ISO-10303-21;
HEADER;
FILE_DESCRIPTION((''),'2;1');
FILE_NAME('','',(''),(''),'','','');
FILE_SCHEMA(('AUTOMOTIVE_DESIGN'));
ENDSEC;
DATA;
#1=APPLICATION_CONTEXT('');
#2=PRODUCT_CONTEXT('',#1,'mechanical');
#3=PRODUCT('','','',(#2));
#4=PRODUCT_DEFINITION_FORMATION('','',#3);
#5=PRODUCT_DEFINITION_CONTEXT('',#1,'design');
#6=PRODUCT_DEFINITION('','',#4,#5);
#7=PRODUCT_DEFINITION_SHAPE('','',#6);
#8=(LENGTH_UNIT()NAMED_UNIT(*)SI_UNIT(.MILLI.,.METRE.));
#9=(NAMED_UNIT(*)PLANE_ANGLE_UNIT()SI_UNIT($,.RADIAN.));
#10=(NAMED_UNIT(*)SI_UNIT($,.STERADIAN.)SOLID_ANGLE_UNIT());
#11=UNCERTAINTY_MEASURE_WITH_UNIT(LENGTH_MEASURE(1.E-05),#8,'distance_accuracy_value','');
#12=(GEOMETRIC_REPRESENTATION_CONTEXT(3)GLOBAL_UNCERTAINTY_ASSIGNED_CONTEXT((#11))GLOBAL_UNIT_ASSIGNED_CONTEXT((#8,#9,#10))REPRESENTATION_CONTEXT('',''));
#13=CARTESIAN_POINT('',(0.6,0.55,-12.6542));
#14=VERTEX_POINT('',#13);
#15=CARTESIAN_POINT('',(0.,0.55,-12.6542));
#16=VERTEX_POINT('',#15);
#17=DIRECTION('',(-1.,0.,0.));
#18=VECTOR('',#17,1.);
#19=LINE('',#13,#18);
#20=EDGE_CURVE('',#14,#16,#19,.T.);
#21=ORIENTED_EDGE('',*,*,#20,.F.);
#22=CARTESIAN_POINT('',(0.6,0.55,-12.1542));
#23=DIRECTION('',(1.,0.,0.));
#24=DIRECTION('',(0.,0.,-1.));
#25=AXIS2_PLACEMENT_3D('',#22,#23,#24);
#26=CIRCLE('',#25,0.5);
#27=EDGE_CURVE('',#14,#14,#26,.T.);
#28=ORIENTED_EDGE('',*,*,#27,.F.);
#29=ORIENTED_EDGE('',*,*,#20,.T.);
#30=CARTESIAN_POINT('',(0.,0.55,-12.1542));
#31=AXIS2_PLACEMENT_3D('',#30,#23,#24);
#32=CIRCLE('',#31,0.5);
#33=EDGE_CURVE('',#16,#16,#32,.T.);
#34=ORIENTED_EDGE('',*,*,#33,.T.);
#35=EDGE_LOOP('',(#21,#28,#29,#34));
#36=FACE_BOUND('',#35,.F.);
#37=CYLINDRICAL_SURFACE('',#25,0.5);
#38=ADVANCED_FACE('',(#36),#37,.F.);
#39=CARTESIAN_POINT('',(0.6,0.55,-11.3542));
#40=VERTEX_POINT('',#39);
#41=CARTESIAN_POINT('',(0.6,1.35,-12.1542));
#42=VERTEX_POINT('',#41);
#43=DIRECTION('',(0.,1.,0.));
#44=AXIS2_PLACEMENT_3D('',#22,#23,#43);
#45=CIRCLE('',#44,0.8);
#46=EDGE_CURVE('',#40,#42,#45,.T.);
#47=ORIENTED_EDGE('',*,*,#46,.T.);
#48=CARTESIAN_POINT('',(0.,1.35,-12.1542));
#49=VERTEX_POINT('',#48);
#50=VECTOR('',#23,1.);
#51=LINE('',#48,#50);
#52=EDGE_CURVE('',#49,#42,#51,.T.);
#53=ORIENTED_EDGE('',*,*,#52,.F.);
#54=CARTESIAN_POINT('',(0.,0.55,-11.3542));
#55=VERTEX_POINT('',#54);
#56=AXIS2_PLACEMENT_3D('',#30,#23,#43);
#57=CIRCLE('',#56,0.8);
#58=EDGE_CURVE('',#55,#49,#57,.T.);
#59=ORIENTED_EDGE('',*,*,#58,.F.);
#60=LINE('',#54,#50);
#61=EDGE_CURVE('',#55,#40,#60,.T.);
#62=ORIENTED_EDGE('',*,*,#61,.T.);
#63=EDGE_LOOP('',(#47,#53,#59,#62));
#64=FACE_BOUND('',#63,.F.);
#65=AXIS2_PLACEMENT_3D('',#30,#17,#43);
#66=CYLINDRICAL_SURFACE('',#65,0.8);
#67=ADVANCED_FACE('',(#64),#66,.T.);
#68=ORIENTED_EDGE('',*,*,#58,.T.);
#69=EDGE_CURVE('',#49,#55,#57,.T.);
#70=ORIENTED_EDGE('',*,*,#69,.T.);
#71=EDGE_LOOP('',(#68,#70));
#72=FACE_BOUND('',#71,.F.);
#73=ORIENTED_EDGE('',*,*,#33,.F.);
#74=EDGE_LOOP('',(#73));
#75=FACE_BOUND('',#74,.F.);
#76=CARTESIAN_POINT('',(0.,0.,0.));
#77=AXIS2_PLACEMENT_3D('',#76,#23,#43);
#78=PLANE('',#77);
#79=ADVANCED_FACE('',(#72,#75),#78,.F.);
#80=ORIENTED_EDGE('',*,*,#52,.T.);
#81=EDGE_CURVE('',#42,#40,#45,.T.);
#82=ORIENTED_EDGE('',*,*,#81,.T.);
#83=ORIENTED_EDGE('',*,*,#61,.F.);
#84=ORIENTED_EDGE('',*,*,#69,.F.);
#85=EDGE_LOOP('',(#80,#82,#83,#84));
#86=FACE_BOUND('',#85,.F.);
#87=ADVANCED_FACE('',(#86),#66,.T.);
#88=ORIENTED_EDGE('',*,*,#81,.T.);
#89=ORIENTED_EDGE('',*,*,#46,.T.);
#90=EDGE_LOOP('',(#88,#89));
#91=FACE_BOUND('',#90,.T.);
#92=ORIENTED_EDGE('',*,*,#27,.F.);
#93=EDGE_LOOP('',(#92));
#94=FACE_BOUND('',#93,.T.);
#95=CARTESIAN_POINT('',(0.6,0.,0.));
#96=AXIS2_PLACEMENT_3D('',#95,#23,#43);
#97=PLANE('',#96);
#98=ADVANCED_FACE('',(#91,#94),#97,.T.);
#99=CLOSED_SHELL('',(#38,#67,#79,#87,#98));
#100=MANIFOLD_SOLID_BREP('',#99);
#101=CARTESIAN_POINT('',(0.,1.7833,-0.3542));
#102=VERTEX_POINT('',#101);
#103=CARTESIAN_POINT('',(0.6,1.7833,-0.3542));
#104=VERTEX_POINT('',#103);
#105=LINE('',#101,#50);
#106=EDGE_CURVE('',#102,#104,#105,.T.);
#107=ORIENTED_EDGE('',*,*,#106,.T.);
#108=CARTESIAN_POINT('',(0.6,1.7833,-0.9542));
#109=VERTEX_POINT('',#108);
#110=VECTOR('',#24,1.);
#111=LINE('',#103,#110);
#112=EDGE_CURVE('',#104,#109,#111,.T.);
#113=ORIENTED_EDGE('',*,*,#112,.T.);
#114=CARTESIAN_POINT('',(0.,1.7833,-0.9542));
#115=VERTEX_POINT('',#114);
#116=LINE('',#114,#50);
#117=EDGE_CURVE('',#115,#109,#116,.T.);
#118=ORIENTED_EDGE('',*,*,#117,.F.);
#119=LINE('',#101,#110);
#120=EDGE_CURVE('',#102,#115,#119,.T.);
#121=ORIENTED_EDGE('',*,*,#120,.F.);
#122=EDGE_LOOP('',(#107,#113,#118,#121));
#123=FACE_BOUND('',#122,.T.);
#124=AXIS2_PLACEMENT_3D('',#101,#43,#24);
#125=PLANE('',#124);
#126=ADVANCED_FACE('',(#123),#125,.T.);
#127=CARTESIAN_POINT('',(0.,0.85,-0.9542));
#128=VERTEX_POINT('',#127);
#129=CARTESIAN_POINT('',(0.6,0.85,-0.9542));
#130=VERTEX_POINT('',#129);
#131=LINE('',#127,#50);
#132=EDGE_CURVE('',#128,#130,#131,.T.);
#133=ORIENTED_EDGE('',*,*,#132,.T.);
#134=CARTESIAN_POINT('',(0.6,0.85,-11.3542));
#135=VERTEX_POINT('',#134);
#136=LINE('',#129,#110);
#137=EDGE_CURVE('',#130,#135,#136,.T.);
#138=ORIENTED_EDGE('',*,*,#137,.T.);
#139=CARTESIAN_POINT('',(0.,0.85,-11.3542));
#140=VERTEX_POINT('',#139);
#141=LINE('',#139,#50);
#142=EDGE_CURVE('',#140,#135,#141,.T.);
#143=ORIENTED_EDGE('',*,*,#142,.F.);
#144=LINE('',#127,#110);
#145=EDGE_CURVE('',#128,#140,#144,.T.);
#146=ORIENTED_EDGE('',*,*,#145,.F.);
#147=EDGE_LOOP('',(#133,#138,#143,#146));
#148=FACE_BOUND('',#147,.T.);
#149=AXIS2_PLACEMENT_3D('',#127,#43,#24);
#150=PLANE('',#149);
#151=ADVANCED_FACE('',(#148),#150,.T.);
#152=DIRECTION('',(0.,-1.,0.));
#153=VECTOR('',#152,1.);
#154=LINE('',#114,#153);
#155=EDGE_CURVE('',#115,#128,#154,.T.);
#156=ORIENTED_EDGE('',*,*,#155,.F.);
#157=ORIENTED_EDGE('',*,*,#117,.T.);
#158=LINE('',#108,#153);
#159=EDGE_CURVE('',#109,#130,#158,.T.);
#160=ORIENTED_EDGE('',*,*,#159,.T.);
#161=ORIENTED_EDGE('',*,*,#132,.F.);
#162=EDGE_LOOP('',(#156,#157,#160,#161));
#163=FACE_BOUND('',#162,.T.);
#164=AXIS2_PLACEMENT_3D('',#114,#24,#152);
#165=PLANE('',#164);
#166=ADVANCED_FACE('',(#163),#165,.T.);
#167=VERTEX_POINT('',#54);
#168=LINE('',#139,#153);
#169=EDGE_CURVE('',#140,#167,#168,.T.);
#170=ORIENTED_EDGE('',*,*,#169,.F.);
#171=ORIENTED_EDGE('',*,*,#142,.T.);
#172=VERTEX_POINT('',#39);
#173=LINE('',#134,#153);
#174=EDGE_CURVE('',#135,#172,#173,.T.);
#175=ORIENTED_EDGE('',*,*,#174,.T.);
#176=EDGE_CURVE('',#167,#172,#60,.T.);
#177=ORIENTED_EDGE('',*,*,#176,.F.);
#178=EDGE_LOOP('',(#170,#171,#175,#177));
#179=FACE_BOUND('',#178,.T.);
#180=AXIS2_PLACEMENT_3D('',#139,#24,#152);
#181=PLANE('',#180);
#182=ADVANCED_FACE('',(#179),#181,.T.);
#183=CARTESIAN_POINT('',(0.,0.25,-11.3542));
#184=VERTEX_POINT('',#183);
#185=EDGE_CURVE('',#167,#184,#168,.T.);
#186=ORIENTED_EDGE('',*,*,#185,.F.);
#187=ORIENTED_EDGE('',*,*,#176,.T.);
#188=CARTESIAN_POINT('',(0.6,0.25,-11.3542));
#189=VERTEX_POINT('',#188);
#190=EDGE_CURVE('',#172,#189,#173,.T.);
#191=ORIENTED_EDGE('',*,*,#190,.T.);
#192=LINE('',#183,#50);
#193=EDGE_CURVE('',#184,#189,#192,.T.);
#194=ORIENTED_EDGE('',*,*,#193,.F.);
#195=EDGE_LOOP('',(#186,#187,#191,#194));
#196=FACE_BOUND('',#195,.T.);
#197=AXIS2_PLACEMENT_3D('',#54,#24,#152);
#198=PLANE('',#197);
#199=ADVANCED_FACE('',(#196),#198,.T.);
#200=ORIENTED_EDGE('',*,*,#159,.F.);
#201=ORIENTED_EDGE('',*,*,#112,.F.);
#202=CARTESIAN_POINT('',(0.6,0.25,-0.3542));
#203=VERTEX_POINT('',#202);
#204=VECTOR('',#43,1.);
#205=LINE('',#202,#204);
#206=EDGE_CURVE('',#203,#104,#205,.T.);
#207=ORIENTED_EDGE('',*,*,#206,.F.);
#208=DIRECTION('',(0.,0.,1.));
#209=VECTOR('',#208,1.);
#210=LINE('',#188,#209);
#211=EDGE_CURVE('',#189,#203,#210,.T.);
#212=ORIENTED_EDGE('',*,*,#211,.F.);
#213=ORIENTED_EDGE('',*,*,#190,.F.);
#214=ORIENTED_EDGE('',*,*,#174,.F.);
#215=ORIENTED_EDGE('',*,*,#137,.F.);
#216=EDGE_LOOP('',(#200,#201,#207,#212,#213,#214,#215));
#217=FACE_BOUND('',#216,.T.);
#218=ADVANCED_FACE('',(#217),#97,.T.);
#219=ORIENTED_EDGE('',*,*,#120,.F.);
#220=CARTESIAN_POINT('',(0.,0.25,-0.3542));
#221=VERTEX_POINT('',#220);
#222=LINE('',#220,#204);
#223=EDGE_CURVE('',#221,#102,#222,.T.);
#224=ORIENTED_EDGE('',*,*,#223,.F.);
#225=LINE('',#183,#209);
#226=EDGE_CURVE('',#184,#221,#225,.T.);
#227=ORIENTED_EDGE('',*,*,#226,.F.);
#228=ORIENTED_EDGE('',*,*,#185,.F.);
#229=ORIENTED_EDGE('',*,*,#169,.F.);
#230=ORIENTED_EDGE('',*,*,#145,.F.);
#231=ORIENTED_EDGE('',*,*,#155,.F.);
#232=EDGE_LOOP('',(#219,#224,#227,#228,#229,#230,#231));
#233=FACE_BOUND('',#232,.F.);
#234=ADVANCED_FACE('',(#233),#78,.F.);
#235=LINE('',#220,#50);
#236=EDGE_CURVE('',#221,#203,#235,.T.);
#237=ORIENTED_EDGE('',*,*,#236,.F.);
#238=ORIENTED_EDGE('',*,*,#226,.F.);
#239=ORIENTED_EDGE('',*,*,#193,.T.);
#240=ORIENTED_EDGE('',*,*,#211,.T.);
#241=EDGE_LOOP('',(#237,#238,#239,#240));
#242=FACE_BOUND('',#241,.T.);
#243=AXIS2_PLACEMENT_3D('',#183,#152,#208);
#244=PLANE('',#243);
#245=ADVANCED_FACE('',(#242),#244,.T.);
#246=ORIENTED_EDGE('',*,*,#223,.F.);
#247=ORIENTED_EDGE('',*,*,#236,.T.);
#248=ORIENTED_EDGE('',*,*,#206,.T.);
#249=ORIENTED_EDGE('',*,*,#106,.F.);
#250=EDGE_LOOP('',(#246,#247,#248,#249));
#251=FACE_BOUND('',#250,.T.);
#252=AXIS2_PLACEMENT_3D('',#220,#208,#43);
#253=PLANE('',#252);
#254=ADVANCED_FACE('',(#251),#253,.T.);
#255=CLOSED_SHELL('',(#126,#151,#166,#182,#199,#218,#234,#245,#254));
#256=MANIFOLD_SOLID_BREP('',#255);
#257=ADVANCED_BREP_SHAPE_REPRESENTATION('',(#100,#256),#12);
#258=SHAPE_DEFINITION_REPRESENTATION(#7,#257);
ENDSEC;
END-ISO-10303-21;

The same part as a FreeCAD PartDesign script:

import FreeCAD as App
import Part
import Sketcher
Q = App.Units.Quantity


def add_polygon(sketch, points):
    """Adds a closed chain of lines whose ends are joined by coincident constraints."""
    first, n = sketch.GeometryCount, len(points)
    for a, b in zip(points, points[1:] + points[:1]):
        sketch.addGeometry(Part.LineSegment(App.Vector(*a, 0), App.Vector(*b, 0)), False)
    for i in range(n):
        sketch.addConstraint(Sketcher.Constraint("Coincident", first + i, 2, first + (i + 1) % n, 1))

doc = App.newDocument("Part")
params = doc.addObject("Spreadsheet::Sheet", "Params")
for row, (alias, value) in enumerate([
    ("sketch1_diameter", "1.6 mm"),
    ("sketch1_height", "11 mm"),
    ("sketch1_height2", "0.6 mm"),
    ("pad1_length", "0.6 mm"),
    ("sketch2_diameter", "1 mm"),
    ("pocket1_length", "0.6 mm"),
], start=1):
    params.set(f"A{row}", alias)
    params.set(f"B{row}", "=" + value)
    params.setAlias(f"B{row}", alias)

body = doc.addObject("PartDesign::Body", "Body")
body.AllowCompound = True

# Sketch on YZ plane
sketch1 = doc.addObject("Sketcher::SketchObject", "Sketch")
body.addObject(sketch1)
sketch1.AttachmentSupport = (doc.YZ_Plane, [""])
sketch1.MapMode = "FlatFace"
sketch1.addGeometry(Part.Circle(App.Vector(0.55, -12.1542, 0), App.Vector(0, 0, 1), 0.8), False)  # 0
add_polygon(sketch1, [(0.85, -0.9542), (1.7833, -0.9542), (1.7833, -0.3542), (0.25, -0.3542), (0.25, -11.3542), (0.55, -11.3542), (0.85, -11.3542)])  # lines 1-7
sketch1.addConstraint(Sketcher.Constraint("Horizontal", 1))
sketch1.addConstraint(Sketcher.Constraint("Vertical", 2))
sketch1.addConstraint(Sketcher.Constraint("Horizontal", 3))
sketch1.addConstraint(Sketcher.Constraint("Vertical", 4))
sketch1.addConstraint(Sketcher.Constraint("Horizontal", 5))
sketch1.addConstraint(Sketcher.Constraint("Horizontal", 6))
sketch1.addConstraint(Sketcher.Constraint("Vertical", 7))
sketch1.addConstraint(Sketcher.Constraint("Vertical", 0, 3, 5, 2))
sketch1.addConstraint(Sketcher.Constraint("Equal", 5, 6))
sketch1.addConstraint(Sketcher.Constraint("Diameter", 0, Q("1.6 mm")))
sketch1.addConstraint(Sketcher.Constraint("DistanceY", 4, 2, 4, 1, Q("11 mm")))
sketch1.addConstraint(Sketcher.Constraint("DistanceY", 2, 1, 2, 2, Q("0.6 mm")))
sketch1.addConstraint(Sketcher.Constraint("DistanceX", 4, 2, 6, 2, Q("0.6 mm")))
sketch1.addConstraint(Sketcher.Constraint("DistanceY", 0, 3, 1, 2, Q("11.2 mm")))
sketch1.addConstraint(Sketcher.Constraint("DistanceX", -1, 1, 0, 3, Q("0.55 mm")))
sketch1.addConstraint(Sketcher.Constraint("DistanceX", 1, 1, 1, 2, Q("0.9333 mm")))
sketch1.addConstraint(Sketcher.Constraint("DistanceY", 0, 3, -1, 1, Q("12.1542 mm")))
sketch1.setExpression("Constraints[16]", "Params.sketch1_diameter")
sketch1.setExpression("Constraints[17]", "Params.sketch1_height")
sketch1.setExpression("Constraints[18]", "Params.sketch1_height2")
pad1 = doc.addObject("PartDesign::Pad", "Pad")
body.addObject(pad1)
pad1.Profile = sketch1
pad1.setExpression("Length", "Params.pad1_length")

# Sketch on YZ plane
sketch2 = doc.addObject("Sketcher::SketchObject", "Sketch001")
body.addObject(sketch2)
sketch2.AttachmentSupport = (doc.YZ_Plane, [""])
sketch2.MapMode = "FlatFace"
sketch2.AttachmentOffset = App.Placement(App.Vector(0, 0, 0.6), App.Rotation())
sketch2.addGeometry(Part.Circle(App.Vector(0.55, -12.1542, 0), App.Vector(0, 0, 1), 0.5), False)
sketch2.addConstraint(Sketcher.Constraint("Diameter", 0, Q("1 mm")))
sketch2.addConstraint(Sketcher.Constraint("DistanceX", -1, 1, 0, 3, Q("0.55 mm")))
sketch2.addConstraint(Sketcher.Constraint("DistanceY", 0, 3, -1, 1, Q("12.1542 mm")))
sketch2.setExpression("Constraints[0]", "Params.sketch2_diameter")
pocket1 = doc.addObject("PartDesign::Pocket", "Pocket")
body.addObject(pocket1)
pocket1.Profile = sketch2
pocket1.setExpression("Length", "Params.pocket1_length")

doc.recompute()
